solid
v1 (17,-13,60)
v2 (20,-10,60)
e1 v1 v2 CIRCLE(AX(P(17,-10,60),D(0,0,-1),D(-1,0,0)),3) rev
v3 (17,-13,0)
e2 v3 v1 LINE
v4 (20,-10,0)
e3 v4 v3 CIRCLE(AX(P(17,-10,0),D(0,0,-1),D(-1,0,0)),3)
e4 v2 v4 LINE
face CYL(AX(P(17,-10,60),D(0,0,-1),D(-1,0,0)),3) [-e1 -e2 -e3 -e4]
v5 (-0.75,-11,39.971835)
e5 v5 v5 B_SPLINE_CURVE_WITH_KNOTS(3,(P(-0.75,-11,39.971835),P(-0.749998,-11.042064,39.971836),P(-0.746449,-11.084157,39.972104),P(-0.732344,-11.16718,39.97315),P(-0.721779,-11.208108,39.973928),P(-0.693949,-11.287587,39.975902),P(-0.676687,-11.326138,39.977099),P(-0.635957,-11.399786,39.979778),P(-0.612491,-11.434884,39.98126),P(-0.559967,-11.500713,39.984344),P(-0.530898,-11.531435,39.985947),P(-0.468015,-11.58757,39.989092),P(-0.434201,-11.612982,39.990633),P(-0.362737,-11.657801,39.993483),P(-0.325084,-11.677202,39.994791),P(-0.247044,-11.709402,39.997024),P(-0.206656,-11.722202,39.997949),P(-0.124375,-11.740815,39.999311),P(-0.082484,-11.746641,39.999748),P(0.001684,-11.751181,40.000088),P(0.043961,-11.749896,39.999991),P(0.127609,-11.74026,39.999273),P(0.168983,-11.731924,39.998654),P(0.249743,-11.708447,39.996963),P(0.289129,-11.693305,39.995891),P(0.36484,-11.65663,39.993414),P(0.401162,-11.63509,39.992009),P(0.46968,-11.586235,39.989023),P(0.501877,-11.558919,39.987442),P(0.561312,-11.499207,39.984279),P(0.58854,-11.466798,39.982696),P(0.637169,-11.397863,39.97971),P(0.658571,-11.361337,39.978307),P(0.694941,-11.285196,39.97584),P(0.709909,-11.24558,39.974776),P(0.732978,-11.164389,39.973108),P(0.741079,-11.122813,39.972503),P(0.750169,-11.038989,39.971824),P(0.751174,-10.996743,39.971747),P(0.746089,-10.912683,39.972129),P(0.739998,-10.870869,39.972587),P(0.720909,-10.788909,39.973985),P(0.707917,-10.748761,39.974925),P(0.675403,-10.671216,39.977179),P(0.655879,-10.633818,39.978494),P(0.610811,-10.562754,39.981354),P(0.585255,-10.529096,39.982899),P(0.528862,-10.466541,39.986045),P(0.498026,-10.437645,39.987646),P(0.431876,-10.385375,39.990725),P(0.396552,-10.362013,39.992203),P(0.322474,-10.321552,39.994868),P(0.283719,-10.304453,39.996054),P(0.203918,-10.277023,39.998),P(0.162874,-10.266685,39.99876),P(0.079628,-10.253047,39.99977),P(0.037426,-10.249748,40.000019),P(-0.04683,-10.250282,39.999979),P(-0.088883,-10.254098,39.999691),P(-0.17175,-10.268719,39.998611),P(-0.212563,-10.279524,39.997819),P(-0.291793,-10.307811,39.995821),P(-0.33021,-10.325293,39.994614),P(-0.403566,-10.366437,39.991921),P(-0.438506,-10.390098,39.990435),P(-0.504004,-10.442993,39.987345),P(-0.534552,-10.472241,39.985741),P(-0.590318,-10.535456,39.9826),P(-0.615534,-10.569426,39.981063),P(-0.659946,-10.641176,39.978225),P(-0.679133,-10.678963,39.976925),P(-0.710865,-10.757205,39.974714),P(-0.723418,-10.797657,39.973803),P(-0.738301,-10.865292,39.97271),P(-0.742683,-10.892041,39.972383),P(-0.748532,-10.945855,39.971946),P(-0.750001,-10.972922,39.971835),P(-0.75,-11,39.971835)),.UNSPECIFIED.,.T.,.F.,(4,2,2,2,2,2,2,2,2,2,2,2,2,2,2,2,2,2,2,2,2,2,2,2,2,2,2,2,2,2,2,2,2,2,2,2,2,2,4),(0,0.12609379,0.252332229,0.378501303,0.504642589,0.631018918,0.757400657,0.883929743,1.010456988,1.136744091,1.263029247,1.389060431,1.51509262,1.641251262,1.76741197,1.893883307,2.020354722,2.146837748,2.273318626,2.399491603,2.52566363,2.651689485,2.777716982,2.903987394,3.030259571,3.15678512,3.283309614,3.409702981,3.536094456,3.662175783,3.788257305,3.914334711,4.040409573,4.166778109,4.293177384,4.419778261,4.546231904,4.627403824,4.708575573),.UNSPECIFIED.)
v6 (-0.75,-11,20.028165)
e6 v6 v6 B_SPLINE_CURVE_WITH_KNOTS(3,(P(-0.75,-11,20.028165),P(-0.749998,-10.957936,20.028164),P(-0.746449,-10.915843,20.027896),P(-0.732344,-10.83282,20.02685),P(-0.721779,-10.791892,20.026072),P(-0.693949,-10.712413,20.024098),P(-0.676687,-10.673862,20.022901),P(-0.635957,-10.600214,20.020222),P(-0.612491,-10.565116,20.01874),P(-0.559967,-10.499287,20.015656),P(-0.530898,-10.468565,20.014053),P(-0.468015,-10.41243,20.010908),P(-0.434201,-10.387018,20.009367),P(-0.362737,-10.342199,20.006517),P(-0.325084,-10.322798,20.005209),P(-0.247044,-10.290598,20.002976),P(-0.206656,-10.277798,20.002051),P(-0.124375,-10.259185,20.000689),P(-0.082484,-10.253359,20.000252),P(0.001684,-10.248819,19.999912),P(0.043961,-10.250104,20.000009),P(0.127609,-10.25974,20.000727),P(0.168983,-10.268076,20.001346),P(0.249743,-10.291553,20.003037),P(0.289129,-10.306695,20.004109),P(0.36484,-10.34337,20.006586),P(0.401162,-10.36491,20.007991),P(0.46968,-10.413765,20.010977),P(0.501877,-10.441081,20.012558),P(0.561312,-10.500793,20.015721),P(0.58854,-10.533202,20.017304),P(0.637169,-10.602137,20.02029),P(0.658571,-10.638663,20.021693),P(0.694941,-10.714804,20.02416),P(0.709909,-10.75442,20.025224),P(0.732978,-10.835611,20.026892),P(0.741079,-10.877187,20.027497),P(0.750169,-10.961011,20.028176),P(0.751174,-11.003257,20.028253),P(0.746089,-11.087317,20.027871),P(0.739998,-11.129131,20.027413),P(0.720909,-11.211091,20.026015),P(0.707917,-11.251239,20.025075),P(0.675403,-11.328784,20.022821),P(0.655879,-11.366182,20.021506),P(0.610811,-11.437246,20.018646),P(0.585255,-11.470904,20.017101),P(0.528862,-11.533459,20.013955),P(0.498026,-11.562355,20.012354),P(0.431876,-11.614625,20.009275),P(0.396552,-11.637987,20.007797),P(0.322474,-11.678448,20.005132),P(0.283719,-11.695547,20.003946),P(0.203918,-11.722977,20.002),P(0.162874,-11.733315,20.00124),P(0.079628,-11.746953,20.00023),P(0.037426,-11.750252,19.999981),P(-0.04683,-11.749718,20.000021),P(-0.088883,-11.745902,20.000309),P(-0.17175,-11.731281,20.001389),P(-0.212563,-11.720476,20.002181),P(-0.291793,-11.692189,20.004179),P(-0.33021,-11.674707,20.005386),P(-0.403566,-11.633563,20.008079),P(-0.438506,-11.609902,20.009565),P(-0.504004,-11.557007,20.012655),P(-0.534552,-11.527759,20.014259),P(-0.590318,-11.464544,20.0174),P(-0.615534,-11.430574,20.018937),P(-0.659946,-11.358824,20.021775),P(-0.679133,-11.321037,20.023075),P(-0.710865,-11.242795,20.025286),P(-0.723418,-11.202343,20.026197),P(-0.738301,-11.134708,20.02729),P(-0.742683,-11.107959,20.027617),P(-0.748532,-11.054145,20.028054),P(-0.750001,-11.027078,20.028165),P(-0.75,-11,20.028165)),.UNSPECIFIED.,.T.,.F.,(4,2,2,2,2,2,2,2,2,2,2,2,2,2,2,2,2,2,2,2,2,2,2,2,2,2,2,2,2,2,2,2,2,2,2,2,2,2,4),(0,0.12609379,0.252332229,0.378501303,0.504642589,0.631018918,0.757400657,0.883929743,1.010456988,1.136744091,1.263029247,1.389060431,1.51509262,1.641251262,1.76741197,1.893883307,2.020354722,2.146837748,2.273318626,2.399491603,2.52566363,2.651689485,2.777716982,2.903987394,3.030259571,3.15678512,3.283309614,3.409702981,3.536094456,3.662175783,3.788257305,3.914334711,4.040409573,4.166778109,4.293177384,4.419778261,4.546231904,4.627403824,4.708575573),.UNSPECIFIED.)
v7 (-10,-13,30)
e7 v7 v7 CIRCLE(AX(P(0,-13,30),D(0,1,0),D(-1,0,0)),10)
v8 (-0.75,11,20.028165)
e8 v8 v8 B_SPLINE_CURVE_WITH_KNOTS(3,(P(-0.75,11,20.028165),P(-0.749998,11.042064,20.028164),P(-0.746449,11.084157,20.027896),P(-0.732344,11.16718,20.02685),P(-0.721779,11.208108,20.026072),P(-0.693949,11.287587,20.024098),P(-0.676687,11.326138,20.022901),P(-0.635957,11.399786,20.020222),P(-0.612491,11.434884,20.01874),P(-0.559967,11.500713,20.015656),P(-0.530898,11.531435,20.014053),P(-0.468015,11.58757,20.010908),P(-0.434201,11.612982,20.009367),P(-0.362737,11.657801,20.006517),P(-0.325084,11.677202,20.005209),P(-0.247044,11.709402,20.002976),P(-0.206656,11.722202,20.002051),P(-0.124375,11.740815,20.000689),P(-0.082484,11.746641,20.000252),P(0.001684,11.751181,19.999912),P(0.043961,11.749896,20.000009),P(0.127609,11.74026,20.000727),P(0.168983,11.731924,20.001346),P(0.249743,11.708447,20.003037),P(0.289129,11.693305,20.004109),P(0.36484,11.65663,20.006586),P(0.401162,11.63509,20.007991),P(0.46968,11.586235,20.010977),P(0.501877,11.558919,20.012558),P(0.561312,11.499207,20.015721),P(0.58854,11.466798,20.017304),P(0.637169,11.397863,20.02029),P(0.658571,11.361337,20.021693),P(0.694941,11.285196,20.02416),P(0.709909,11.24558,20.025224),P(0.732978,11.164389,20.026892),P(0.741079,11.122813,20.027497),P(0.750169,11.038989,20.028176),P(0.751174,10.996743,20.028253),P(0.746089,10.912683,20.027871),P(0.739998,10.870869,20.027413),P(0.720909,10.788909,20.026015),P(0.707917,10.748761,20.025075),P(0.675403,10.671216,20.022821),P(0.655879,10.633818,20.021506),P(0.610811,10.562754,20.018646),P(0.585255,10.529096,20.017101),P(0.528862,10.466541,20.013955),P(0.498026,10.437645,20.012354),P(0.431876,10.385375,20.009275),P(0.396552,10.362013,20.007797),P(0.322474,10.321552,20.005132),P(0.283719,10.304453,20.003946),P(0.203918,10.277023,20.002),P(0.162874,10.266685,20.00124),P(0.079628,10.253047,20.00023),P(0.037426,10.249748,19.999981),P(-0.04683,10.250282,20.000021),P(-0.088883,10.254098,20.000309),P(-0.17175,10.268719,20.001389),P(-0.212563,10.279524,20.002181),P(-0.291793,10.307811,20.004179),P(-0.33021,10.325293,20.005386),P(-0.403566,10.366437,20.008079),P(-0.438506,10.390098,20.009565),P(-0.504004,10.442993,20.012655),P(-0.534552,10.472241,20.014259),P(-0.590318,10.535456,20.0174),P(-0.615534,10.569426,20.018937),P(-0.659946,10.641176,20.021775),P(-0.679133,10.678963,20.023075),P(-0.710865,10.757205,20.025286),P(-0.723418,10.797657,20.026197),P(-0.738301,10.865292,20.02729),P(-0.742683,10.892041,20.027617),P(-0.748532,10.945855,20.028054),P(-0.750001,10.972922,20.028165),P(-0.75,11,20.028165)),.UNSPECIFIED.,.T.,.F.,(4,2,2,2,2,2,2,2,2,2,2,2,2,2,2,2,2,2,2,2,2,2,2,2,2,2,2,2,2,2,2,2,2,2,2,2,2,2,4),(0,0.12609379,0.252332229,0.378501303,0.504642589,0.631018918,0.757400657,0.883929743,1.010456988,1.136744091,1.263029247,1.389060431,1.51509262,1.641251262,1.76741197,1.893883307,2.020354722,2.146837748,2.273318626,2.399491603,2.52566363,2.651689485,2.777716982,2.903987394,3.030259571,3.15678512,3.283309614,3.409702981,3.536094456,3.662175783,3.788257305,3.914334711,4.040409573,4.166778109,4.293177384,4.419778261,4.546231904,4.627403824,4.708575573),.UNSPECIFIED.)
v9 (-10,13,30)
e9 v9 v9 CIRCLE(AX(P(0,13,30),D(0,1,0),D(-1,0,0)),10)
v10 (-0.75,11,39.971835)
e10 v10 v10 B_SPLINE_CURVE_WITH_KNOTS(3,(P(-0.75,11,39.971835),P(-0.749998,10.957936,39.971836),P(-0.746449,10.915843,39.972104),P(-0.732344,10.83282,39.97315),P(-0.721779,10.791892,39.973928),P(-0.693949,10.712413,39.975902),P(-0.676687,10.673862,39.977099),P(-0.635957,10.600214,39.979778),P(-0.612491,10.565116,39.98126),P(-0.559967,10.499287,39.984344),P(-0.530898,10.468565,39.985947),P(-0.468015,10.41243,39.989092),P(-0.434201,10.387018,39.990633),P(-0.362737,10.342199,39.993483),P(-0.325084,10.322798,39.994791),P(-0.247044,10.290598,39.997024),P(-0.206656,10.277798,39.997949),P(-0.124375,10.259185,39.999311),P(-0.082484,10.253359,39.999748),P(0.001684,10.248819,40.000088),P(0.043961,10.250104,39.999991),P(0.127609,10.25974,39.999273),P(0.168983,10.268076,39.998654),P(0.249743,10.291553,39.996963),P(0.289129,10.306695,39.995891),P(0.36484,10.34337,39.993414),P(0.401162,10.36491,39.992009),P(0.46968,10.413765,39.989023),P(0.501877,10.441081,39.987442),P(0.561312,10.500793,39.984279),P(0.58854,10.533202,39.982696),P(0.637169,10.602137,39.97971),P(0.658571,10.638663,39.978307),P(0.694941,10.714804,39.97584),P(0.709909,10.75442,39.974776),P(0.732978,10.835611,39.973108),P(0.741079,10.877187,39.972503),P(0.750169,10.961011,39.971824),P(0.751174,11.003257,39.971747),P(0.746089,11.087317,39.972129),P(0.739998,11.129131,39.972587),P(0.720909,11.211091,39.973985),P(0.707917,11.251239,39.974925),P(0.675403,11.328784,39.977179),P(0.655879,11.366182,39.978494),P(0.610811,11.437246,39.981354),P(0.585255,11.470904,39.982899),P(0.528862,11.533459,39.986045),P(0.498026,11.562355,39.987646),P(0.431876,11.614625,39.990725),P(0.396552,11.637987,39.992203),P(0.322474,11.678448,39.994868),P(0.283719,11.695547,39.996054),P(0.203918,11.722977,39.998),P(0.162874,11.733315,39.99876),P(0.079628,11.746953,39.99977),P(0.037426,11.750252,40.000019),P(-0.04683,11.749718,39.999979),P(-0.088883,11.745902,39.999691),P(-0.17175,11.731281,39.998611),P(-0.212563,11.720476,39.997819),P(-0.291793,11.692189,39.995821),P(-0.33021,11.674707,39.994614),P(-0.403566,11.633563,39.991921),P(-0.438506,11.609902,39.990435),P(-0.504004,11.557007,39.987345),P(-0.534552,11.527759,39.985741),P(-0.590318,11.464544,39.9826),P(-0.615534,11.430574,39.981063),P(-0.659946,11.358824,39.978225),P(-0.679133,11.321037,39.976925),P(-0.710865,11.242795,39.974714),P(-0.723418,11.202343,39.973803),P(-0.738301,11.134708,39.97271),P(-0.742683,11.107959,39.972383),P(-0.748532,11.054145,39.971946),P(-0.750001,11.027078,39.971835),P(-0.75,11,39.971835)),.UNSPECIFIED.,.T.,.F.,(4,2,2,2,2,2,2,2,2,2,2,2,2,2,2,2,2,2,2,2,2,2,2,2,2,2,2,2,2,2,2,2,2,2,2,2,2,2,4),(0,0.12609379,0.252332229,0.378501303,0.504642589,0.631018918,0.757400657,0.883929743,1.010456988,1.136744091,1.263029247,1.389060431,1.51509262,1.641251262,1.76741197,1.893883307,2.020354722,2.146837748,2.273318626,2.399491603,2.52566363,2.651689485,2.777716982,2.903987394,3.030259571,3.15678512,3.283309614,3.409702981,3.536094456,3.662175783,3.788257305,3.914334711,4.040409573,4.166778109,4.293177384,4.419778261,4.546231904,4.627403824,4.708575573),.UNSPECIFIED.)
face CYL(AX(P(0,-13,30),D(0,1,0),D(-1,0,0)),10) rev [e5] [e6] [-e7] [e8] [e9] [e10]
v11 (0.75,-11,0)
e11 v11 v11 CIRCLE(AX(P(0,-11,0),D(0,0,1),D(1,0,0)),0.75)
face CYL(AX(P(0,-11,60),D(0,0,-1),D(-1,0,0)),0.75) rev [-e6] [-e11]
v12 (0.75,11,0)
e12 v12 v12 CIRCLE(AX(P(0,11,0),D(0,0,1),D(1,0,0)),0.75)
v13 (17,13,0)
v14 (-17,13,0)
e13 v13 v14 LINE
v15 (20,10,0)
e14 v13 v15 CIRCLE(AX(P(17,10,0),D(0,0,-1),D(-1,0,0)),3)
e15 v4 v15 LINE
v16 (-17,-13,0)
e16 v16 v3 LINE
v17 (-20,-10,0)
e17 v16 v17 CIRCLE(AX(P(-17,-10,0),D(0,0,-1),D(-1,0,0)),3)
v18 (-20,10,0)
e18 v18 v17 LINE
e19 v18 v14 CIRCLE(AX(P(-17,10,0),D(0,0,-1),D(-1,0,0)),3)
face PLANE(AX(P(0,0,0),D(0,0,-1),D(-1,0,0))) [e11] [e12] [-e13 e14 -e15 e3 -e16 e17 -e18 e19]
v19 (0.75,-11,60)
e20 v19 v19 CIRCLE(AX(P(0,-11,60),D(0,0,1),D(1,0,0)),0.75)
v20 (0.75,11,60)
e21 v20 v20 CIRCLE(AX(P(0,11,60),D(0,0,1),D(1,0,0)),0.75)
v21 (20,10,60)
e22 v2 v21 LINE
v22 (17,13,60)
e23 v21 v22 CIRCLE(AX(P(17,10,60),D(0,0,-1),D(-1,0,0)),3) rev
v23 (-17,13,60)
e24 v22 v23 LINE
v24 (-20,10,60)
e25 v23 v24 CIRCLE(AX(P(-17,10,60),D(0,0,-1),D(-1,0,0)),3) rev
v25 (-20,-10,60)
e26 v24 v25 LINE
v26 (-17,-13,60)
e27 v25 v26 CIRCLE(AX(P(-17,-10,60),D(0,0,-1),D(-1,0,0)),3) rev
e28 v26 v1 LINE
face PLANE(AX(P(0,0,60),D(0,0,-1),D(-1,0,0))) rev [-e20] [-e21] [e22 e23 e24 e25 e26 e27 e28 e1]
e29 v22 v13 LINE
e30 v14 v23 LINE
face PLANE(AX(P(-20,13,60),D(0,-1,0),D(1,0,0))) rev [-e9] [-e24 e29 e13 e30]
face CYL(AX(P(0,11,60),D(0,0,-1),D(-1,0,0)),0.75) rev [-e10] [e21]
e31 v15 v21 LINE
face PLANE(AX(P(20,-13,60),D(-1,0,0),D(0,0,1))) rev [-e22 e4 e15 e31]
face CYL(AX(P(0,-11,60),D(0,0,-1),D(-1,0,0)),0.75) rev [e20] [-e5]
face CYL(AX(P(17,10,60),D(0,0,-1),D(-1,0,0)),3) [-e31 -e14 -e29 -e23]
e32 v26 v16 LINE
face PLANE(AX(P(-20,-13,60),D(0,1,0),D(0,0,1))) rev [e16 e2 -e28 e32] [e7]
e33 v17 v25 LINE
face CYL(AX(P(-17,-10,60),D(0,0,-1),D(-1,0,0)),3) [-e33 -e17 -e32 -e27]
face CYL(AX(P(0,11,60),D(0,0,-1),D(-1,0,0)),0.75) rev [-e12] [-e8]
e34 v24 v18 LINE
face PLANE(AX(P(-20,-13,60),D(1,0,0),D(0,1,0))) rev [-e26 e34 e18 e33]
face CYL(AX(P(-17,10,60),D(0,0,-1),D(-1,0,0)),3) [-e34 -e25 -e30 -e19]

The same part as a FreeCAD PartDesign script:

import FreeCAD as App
import Part
import Sketcher


def edges_at(feature, points):
    """Names of the edges that pass closest to the given points."""
    edges = feature.Shape.Edges
    near = lambda p: min(range(len(edges)), key=lambda i: edges[i].distToShape(Part.Vertex(*p))[0])
    return sorted({f"Edge{near(p) + 1}" for p in points})

doc = App.newDocument("Part")
body = doc.addObject("PartDesign::Body", "Body")

# Sketch on XY plane
sketch1 = body.newObject("Sketcher::SketchObject", "Sketch")
sketch1.AttachmentSupport = (doc.getObject("XY_Plane"), [""])
sketch1.MapMode = "FlatFace"
sketch1.addGeometry([
    Part.LineSegment(App.Vector(-20, 13, 0), App.Vector(-20, -13, 0)),  # 0
    Part.LineSegment(App.Vector(-20, -13, 0), App.Vector(20, -13, 0)),  # 1
    Part.LineSegment(App.Vector(20, -13, 0), App.Vector(20, 13, 0)),  # 2
    Part.LineSegment(App.Vector(20, 13, 0), App.Vector(-20, 13, 0)),  # 3
    Part.Circle(App.Vector(0, -11, 0), App.Vector(0, 0, 1), 0.8),  # 4
    Part.Circle(App.Vector(0, 11, 0), App.Vector(0, 0, 1), 0.8),  # 5
], False)
sketch1.addConstraint([
    Sketcher.Constraint("Coincident", 0, 2, 1, 1),
    Sketcher.Constraint("Coincident", 1, 2, 2, 1),
    Sketcher.Constraint("Coincident", 2, 2, 3, 1),
    Sketcher.Constraint("Coincident", 3, 2, 0, 1),
    Sketcher.Constraint("Vertical", 0),
    Sketcher.Constraint("Horizontal", 1),
    Sketcher.Constraint("Vertical", 2),
    Sketcher.Constraint("Horizontal", 3),
    Sketcher.Constraint("Equal", 4, 5),
    Sketcher.Constraint("Symmetric", 4, 3, 5, 3, -1, 1),
    Sketcher.Constraint("Symmetric", 0, 2, 2, 2, -1, 1),
    Sketcher.Constraint("PointOnObject", 4, 3, -2),
    Sketcher.Constraint("Diameter", 4, 1.5),
    Sketcher.Constraint("DistanceX", 1, 1, 1, 2, 40.0),
    Sketcher.Constraint("DistanceY", 0, 2, 0, 1, 26.0),
    Sketcher.Constraint("DistanceY", 4, 3, -1, 1, 11.0),
])
pad1 = body.newObject("PartDesign::Pad", "Pad")
pad1.Profile = sketch1
pad1.Length = 60
doc.recompute()

fillet = body.newObject("PartDesign::Fillet", "Fillet")
fillet.Base = (pad1, edges_at(pad1, [(20, 13, 30)]))
fillet.Radius = 3
doc.recompute()

fillet2 = body.newObject("PartDesign::Fillet", "Fillet001")
fillet2.Base = (fillet, edges_at(fillet, [(20, -13, 30), (-20, -13, 30), (-20, 13, 30)]))
fillet2.Radius = 3

# Sketch on XZ plane
sketch2 = body.newObject("Sketcher::SketchObject", "Sketch001")
sketch2.AttachmentSupport = (doc.getObject("XZ_Plane"), [""])
sketch2.MapMode = "FlatFace"
sketch2.AttachmentOffset = App.Placement(App.Vector(0, 0, -13), App.Rotation())
sketch2.addGeometry(Part.Circle(App.Vector(0, 30, 0), App.Vector(0, 0, 1), 10), False)
sketch2.addConstraint([
    Sketcher.Constraint("PointOnObject", 0, 3, -2),
    Sketcher.Constraint("Diameter", 0, 20.0),
    Sketcher.Constraint("DistanceY", -1, 1, 0, 3, 30.0),
])
pocket1 = body.newObject("PartDesign::Pocket", "Pocket")
pocket1.Profile = sketch2
pocket1.Type = "ThroughAll"
pocket1.Reversed = True

doc.recompute()
